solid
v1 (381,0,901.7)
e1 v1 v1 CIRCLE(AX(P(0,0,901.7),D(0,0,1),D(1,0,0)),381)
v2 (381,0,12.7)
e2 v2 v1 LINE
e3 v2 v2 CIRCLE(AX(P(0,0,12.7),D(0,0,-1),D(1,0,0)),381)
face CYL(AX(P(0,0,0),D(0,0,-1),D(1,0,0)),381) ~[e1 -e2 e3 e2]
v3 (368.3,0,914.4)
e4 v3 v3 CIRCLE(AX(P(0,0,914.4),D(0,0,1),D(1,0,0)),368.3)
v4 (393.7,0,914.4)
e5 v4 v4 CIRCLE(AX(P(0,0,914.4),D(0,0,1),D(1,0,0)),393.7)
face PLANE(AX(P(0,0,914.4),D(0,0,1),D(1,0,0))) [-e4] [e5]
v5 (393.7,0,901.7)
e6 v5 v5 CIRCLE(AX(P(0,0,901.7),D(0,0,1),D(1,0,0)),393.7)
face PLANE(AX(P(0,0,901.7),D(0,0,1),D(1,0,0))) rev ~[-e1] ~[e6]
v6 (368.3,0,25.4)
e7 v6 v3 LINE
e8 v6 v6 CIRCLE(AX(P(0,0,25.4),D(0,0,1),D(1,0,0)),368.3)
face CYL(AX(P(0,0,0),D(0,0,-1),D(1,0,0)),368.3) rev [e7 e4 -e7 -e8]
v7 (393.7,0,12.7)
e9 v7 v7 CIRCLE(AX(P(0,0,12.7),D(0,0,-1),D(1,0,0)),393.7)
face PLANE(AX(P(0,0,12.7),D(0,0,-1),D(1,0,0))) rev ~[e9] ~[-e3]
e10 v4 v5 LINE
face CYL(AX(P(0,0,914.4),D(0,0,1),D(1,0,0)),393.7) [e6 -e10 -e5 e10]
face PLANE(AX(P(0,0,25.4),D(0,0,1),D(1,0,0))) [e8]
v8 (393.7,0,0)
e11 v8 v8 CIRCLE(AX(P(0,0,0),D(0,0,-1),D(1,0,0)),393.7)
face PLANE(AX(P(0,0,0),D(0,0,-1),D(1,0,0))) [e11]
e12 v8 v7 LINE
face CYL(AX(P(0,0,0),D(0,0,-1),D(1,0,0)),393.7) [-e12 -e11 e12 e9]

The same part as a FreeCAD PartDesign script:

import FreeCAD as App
import Part
import Sketcher
Q = App.Units.Quantity

doc = App.newDocument("Part")
body = doc.addObject("PartDesign::Body", "Body")

sketch1 = body.newObject("Sketcher::SketchObject", "Sketch")
sketch1.AttachmentSupport = (doc.getObject("XY_Plane"), [""])
sketch1.MapMode = "FlatFace"
sketch1.addGeometry(Part.Circle(App.Vector(0, 0, 0), App.Vector(0, 0, 1), 368), False)
sketch1.addConstraint([
    Sketcher.Constraint("Coincident", 0, 3, -1, 1),
    Sketcher.Constraint("Diameter", 0, Q("29 in")),
])
pad1 = body.newObject("PartDesign::Pad", "Pad")
pad1.Profile = sketch1
pad1.Length = Q("1 in")

sketch2 = body.newObject("Sketcher::SketchObject", "Sketch001")
sketch2.AttachmentSupport = (doc.getObject("XY_Plane"), [""])
sketch2.MapMode = "FlatFace"
sketch2.addGeometry([
    Part.Circle(App.Vector(0, 0, 0), App.Vector(0, 0, 1), 381),
    Part.Circle(App.Vector(0, 0, 0), App.Vector(0, 0, 1), 368),
], False)
sketch2.addConstraint([
    Sketcher.Constraint("Coincident", 0, 3, -1, 1),
    Sketcher.Constraint("Coincident", 1, 3, -1, 1),
    Sketcher.Constraint("Diameter", 0, Q("30 in")),
    Sketcher.Constraint("Diameter", 1, Q("29 in")),
])
pad2 = body.newObject("PartDesign::Pad", "Pad001")
pad2.Profile = sketch2
pad2.Length = Q("36 in")

sketch3 = body.newObject("Sketcher::SketchObject", "Sketch002")
sketch3.AttachmentSupport = (doc.getObject("XY_Plane"), [""])
sketch3.MapMode = "FlatFace"
sketch3.addGeometry([
    Part.Circle(App.Vector(0, 0, 0), App.Vector(0, 0, 1), 394),
    Part.Circle(App.Vector(0, 0, 0), App.Vector(0, 0, 1), 381),
], False)
sketch3.addConstraint([
    Sketcher.Constraint("Coincident", 0, 3, -1, 1),
    Sketcher.Constraint("Coincident", 1, 3, -1, 1),
    Sketcher.Constraint("Diameter", 0, Q("31 in")),
    Sketcher.Constraint("Diameter", 1, Q("30 in")),
])
pad3 = body.newObject("PartDesign::Pad", "Pad002")
pad3.Profile = sketch3
pad3.Length = Q("0.5 in")

sketch4 = body.newObject("Sketcher::SketchObject", "Sketch003")
sketch4.AttachmentSupport = (doc.getObject("XY_Plane"), [""])
sketch4.MapMode = "FlatFace"
sketch4.AttachmentOffset = App.Placement(App.Vector(0, 0, 36 * 25.4), App.Rotation())
sketch4.addGeometry([
    Part.Circle(App.Vector(0, 0, 0), App.Vector(0, 0, 1), 394),
    Part.Circle(App.Vector(0, 0, 0), App.Vector(0, 0, 1), 381),
], False)
sketch4.addConstraint([
    Sketcher.Constraint("Coincident", 0, 3, -1, 1),
    Sketcher.Constraint("Coincident", 1, 3, -1, 1),
    Sketcher.Constraint("Diameter", 0, Q("31 in")),
    Sketcher.Constraint("Diameter", 1, Q("30 in")),
])
pad4 = body.newObject("PartDesign::Pad", "Pad003")
pad4.Profile = sketch4
pad4.Length = Q("0.5 in")
pad4.Reversed = True

doc.recompute()
